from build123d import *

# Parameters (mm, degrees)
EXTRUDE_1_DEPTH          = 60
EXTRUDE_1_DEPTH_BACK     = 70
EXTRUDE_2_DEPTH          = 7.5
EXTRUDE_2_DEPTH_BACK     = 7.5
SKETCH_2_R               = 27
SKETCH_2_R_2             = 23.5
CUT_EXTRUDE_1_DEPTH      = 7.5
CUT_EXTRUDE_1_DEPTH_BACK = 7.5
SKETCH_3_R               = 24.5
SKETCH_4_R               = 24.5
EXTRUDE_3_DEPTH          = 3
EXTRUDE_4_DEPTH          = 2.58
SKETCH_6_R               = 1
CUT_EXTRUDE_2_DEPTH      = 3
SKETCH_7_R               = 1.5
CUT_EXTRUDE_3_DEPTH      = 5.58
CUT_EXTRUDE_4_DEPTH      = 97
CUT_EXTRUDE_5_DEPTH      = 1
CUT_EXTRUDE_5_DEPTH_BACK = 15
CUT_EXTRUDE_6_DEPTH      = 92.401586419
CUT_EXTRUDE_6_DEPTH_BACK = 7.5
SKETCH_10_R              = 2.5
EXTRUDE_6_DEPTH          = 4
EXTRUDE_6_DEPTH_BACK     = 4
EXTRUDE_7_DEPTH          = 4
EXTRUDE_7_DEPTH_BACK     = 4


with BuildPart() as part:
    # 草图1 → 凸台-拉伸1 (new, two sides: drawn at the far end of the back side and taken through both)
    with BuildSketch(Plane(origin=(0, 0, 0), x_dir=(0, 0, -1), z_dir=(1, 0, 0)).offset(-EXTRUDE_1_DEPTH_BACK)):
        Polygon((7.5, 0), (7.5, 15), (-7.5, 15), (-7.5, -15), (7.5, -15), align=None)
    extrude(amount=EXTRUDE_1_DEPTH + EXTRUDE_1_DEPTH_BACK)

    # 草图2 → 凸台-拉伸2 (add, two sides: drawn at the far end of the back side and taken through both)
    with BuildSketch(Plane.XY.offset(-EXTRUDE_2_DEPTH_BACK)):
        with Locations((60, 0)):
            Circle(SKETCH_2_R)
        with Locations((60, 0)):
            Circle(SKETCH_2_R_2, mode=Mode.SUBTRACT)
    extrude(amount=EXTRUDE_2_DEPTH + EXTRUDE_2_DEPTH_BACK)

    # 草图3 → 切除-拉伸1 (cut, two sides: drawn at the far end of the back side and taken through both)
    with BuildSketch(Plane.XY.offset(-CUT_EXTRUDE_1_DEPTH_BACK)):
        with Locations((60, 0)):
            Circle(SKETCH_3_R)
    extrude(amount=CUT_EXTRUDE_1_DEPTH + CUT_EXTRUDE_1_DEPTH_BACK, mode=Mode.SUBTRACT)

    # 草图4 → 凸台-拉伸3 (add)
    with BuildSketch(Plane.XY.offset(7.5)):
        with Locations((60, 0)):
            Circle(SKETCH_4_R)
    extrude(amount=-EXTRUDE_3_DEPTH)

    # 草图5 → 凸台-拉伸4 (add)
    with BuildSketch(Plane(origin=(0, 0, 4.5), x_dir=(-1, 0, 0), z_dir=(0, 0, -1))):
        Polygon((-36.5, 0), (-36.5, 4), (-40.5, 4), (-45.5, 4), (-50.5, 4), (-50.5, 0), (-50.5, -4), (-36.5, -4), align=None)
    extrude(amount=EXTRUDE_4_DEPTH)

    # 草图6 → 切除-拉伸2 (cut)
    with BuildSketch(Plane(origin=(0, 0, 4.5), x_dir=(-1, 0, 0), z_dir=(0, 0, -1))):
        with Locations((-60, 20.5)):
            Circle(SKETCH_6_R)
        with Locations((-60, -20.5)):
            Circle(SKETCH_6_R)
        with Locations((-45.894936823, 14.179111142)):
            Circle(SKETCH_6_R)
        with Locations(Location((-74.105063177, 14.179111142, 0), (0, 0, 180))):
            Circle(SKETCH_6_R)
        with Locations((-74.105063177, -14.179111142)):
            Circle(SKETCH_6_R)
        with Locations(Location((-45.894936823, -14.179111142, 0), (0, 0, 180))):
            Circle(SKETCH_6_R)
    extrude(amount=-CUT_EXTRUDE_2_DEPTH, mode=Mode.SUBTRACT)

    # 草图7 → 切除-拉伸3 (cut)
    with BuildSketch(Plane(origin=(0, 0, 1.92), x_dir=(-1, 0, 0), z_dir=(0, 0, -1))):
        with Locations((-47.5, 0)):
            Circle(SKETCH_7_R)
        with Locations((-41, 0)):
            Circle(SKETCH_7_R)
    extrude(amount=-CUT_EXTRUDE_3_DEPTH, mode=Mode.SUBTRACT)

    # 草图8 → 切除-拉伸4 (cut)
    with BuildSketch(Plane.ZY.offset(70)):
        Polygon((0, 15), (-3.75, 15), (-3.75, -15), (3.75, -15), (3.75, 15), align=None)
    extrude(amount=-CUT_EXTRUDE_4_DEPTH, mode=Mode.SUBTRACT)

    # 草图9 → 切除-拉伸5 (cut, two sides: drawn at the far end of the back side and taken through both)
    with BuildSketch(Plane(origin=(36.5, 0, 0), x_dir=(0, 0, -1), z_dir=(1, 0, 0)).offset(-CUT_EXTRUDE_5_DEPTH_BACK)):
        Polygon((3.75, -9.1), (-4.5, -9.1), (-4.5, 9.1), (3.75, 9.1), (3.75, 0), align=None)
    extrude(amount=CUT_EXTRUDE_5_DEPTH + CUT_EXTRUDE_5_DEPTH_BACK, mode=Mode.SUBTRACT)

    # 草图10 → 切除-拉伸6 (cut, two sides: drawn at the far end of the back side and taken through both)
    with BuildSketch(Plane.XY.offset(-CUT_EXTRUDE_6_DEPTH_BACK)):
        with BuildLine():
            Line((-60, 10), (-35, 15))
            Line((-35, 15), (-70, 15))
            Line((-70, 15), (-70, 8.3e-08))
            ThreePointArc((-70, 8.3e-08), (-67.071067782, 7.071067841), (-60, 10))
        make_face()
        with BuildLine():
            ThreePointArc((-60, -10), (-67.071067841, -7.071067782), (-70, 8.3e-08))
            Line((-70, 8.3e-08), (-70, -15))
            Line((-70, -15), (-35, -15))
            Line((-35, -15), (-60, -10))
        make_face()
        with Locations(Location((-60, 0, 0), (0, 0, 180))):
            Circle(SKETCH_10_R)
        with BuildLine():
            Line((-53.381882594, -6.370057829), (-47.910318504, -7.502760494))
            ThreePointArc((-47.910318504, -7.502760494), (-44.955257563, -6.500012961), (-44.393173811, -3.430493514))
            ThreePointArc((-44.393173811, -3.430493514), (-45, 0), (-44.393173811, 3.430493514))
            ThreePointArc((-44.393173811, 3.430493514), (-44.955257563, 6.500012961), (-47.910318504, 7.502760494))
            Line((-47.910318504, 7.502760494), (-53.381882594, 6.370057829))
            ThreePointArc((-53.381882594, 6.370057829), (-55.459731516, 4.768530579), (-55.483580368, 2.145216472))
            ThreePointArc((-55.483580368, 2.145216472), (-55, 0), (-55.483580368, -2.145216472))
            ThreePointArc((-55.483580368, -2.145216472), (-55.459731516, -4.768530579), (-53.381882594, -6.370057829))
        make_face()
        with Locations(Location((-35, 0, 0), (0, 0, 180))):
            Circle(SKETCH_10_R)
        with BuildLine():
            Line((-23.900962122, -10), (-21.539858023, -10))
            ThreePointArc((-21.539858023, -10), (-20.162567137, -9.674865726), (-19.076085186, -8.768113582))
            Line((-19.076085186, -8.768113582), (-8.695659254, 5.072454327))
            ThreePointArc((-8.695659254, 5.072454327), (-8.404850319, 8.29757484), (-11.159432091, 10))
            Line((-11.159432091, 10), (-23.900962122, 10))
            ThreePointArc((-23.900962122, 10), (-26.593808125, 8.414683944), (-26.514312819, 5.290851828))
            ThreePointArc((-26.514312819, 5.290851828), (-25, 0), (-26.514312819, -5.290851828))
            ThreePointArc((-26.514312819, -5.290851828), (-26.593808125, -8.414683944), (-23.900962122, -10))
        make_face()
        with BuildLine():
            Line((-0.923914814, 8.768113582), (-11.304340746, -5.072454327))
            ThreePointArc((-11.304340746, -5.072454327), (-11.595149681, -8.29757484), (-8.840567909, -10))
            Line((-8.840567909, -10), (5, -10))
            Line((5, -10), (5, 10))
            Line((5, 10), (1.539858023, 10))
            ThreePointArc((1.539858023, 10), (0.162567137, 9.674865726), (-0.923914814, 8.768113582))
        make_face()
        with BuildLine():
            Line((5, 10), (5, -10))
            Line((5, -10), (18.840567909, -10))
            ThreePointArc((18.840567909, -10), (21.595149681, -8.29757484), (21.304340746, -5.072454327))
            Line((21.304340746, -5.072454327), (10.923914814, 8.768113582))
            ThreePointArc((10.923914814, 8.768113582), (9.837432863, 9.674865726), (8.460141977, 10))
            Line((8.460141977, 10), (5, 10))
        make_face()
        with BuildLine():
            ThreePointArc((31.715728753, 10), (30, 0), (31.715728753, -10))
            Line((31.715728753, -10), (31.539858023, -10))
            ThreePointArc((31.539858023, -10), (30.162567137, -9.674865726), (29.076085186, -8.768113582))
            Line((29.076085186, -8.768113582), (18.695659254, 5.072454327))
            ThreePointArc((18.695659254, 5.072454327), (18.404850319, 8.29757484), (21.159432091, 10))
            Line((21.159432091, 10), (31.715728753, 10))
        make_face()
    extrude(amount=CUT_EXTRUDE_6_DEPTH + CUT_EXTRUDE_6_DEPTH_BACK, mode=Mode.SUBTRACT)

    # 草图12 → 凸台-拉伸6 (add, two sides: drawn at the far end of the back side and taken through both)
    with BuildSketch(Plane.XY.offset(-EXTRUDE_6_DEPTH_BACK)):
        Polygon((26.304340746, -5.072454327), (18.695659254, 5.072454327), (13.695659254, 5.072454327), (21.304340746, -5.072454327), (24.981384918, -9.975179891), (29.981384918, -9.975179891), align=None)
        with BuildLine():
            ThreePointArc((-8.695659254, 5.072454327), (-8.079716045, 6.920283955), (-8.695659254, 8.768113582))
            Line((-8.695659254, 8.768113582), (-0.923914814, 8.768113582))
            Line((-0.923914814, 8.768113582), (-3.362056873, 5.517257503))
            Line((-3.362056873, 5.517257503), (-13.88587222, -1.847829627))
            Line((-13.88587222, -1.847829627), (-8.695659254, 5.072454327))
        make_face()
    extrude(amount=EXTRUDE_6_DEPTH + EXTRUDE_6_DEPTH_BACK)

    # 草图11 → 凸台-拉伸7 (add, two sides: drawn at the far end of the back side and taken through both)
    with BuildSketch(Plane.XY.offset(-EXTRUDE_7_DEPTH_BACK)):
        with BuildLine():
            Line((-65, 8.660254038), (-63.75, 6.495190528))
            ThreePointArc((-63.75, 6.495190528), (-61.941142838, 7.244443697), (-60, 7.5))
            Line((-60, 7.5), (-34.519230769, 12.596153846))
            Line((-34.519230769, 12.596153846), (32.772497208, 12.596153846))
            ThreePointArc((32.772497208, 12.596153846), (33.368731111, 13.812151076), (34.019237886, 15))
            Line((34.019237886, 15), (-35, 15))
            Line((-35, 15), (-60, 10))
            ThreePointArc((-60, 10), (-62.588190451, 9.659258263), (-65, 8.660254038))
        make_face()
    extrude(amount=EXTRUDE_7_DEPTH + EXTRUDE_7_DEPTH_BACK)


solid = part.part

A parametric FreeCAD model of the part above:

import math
import FreeCAD as App
import Part
import Sketcher
Q = App.Units.Quantity

doc = App.newDocument("Part")
body = doc.addObject("PartDesign::Body", "Body")

# Sketch on YZ plane
sketch1 = doc.addObject("Sketcher::SketchObject", "Sketch")
body.addObject(sketch1)
sketch1.AttachmentSupport = (doc.YZ_Plane, [""])
sketch1.MapMode = "FlatFace"
sketch1.addGeometry([
    Part.LineSegment(App.Vector(15, -8, 0), App.Vector(15, 8, 0)),
    Part.LineSegment(App.Vector(15, 8, 0), App.Vector(-15, 8, 0)),
    Part.LineSegment(App.Vector(-15, 8, 0), App.Vector(-15, -8, 0)),
    Part.LineSegment(App.Vector(-15, -8, 0), App.Vector(15, -8, 0)),
], False)
sketch1.addConstraint([
    Sketcher.Constraint("Coincident", 0, 2, 1, 1),
    Sketcher.Constraint("Coincident", 1, 2, 2, 1),
    Sketcher.Constraint("Coincident", 2, 2, 3, 1),
    Sketcher.Constraint("Coincident", 3, 2, 0, 1),
    Sketcher.Constraint("Vertical", 0),
    Sketcher.Constraint("Horizontal", 1),
    Sketcher.Constraint("Vertical", 2),
    Sketcher.Constraint("Horizontal", 3),
    Sketcher.Constraint("Symmetric", 0, 2, 2, 2, -1, 1),
    Sketcher.Constraint("DistanceX", 1, 2, 1, 1, Q("30 mm")),
    Sketcher.Constraint("DistanceY", 0, 1, 0, 2, Q("15 mm")),
])
pad1 = doc.addObject("PartDesign::Pad", "Pad")
body.addObject(pad1)
pad1.Profile = sketch1
pad1.Type = "TwoLengths"
pad1.Length = 60
pad1.Length2 = 70

# Sketch on XY plane
sketch2 = doc.addObject("Sketcher::SketchObject", "Sketch001")
body.addObject(sketch2)
sketch2.AttachmentSupport = (doc.XY_Plane, [""])
sketch2.MapMode = "FlatFace"
sketch2.addGeometry([
    Part.Circle(App.Vector(60, 0, 0), App.Vector(0, 0, 1), 27),
    Part.Circle(App.Vector(60, 0, 0), App.Vector(0, 0, 1), 24),
], False)
sketch2.addConstraint([
    Sketcher.Constraint("Coincident", 1, 3, 0, 3),
    Sketcher.Constraint("PointOnObject", 0, 3, -1),
    Sketcher.Constraint("Diameter", 0, Q("54 mm")),
    Sketcher.Constraint("Diameter", 1, Q("47 mm")),
    Sketcher.Constraint("DistanceX", -1, 1, 0, 3, Q("60 mm")),
])
pad2 = doc.addObject("PartDesign::Pad", "Pad001")
body.addObject(pad2)
pad2.Profile = sketch2
pad2.Type = "TwoLengths"
pad2.Length = 7.5
pad2.Length2 = 7.5

# Sketch on XY plane
sketch3 = doc.addObject("Sketcher::SketchObject", "Sketch002")
body.addObject(sketch3)
sketch3.AttachmentSupport = (doc.XY_Plane, [""])
sketch3.MapMode = "FlatFace"
sketch3.addGeometry(Part.Circle(App.Vector(60, 0, 0), App.Vector(0, 0, 1), 24), False)
sketch3.addConstraint([
    Sketcher.Constraint("PointOnObject", 0, 3, -1),
    Sketcher.Constraint("Diameter", 0, Q("49 mm")),
    Sketcher.Constraint("DistanceX", -1, 1, 0, 3, Q("60 mm")),
])
pocket1 = doc.addObject("PartDesign::Pocket", "Pocket")
body.addObject(pocket1)
pocket1.Profile = sketch3
pocket1.Type = "ThroughAll"
pocket1.Midplane = True

# Sketch on XY plane
sketch4 = doc.addObject("Sketcher::SketchObject", "Sketch003")
body.addObject(sketch4)
sketch4.AttachmentSupport = (doc.XY_Plane, [""])
sketch4.MapMode = "FlatFace"
sketch4.AttachmentOffset = App.Placement(App.Vector(0, 0, 7.5), App.Rotation())
sketch4.addGeometry(Part.Circle(App.Vector(60, 0, 0), App.Vector(0, 0, 1), 24), False)
sketch4.addConstraint([
    Sketcher.Constraint("PointOnObject", 0, 3, -1),
    Sketcher.Constraint("Diameter", 0, Q("49 mm")),
    Sketcher.Constraint("DistanceX", -1, 1, 0, 3, Q("60 mm")),
])
pad3 = doc.addObject("PartDesign::Pad", "Pad002")
body.addObject(pad3)
pad3.Profile = sketch4
pad3.Length = 3
pad3.Reversed = True

# Sketch on XY plane
sketch5 = doc.addObject("Sketcher::SketchObject", "Sketch004")
body.addObject(sketch5)
sketch5.AttachmentSupport = (doc.XY_Plane, [""])
sketch5.MapMode = "FlatFace"
sketch5.AttachmentOffset = App.Placement(App.Vector(0, 0, 4.5), App.Rotation())
sketch5.addGeometry([
    Part.LineSegment(App.Vector(36, 4, 0), App.Vector(50, 4, 0)),
    Part.LineSegment(App.Vector(50, 4, 0), App.Vector(50, -4, 0)),
    Part.LineSegment(App.Vector(50, -4, 0), App.Vector(36, -4, 0)),
    Part.LineSegment(App.Vector(36, -4, 0), App.Vector(36, 4, 0)),
], False)
sketch5.addConstraint([
    Sketcher.Constraint("Coincident", 0, 2, 1, 1),
    Sketcher.Constraint("Coincident", 1, 2, 2, 1),
    Sketcher.Constraint("Coincident", 2, 2, 3, 1),
    Sketcher.Constraint("Coincident", 3, 2, 0, 1),
    Sketcher.Constraint("Horizontal", 0),
    Sketcher.Constraint("Vertical", 1),
    Sketcher.Constraint("Horizontal", 2),
    Sketcher.Constraint("Vertical", 3),
    Sketcher.Constraint("DistanceX", 0, 1, 0, 2, Q("14 mm")),
    Sketcher.Constraint("DistanceY", 1, 2, 1, 1, Q("8 mm")),
    Sketcher.Constraint("DistanceY", -1, 1, 0, 2, Q("4 mm")),
    Sketcher.Constraint("DistanceX", -1, 1, 0, 2, Q("50.5 mm")),
])
pad4 = doc.addObject("PartDesign::Pad", "Pad003")
body.addObject(pad4)
pad4.Profile = sketch5
pad4.Length = 2.58
pad4.Reversed = True

# Sketch on XY plane
sketch6 = doc.addObject("Sketcher::SketchObject", "Sketch005")
body.addObject(sketch6)
sketch6.AttachmentSupport = (doc.XY_Plane, [""])
sketch6.MapMode = "FlatFace"
sketch6.AttachmentOffset = App.Placement(App.Vector(0, 0, 4.5), App.Rotation())
sketch6.addGeometry([
    Part.Circle(App.Vector(60, 20.5, 0), App.Vector(0, 0, 1), 1),  # 0
    Part.Circle(App.Vector(60, -20.5, 0), App.Vector(0, 0, 1), 1),  # 1
    Part.Circle(App.Vector(45.9, 14.2, 0), App.Vector(0, 0, 1), 1),  # 2
    Part.Circle(App.Vector(74.1, 14.2, 0), App.Vector(0, 0, 1), 1),  # 3
    Part.Circle(App.Vector(74.1, -14.2, 0), App.Vector(0, 0, 1), 1),  # 4
    Part.Circle(App.Vector(45.9, -14.2, 0), App.Vector(0, 0, 1), 1),  # 5
], False)
sketch6.addConstraint([
    Sketcher.Constraint("Equal", 0, 1),
    Sketcher.Constraint("Equal", 1, 2),
    Sketcher.Constraint("Equal", 2, 3),
    Sketcher.Constraint("Equal", 3, 4),
    Sketcher.Constraint("Equal", 4, 5),
    Sketcher.Constraint("Symmetric", 0, 3, 1, 3, -1),
    Sketcher.Constraint("Symmetric", 3, 3, 4, 3, -1),
    Sketcher.Constraint("Symmetric", 2, 3, 5, 3, -1),
    Sketcher.Constraint("Horizontal", 2, 3, 3, 3),
    Sketcher.Constraint("Diameter", 0, Q("2 mm")),
    Sketcher.Constraint("DistanceX", -1, 1, 0, 3, Q("60 mm")),
    Sketcher.Constraint("DistanceY", 1, 3, 0, 3, Q("41 mm")),
    Sketcher.Constraint("DistanceY", -1, 1, 2, 3, Q("14.179111 mm")),
    Sketcher.Constraint("DistanceX", -1, 1, 2, 3, Q("45.894937 mm")),
    Sketcher.Constraint("DistanceX", -1, 1, 3, 3, Q("74.105063 mm")),
])
pocket2 = doc.addObject("PartDesign::Pocket", "Pocket001")
body.addObject(pocket2)
pocket2.Profile = sketch6
pocket2.Length = 3
pocket2.Reversed = True

# Sketch on XY plane
sketch7 = doc.addObject("Sketcher::SketchObject", "Sketch006")
body.addObject(sketch7)
sketch7.AttachmentSupport = (doc.XY_Plane, [""])
sketch7.MapMode = "FlatFace"
sketch7.AttachmentOffset = App.Placement(App.Vector(0, 0, 1.92), App.Rotation())
sketch7.addGeometry([
    Part.Circle(App.Vector(47.5, 0, 0), App.Vector(0, 0, 1), 1.5),
    Part.Circle(App.Vector(41, 0, 0), App.Vector(0, 0, 1), 1.5),
], False)
sketch7.addConstraint([
    Sketcher.Constraint("Equal", 0, 1),
    Sketcher.Constraint("PointOnObject", 0, 3, -1),
    Sketcher.Constraint("PointOnObject", 1, 3, -1),
    Sketcher.Constraint("Diameter", 0, Q("3 mm")),
    Sketcher.Constraint("DistanceX", -1, 1, 1, 3, Q("41 mm")),
    Sketcher.Constraint("DistanceX", -1, 1, 0, 3, Q("47.5 mm")),
])
pocket3 = doc.addObject("PartDesign::Pocket", "Pocket002")
body.addObject(pocket3)
pocket3.Profile = sketch7
pocket3.Length = 5.58
pocket3.Reversed = True

# Sketch on YZ plane
sketch8 = doc.addObject("Sketcher::SketchObject", "Sketch007")
body.addObject(sketch8)
sketch8.AttachmentSupport = (doc.YZ_Plane, [""])
sketch8.MapMode = "FlatFace"
sketch8.AttachmentOffset = App.Placement(App.Vector(0, 0, -70), App.Rotation())
sketch8.addGeometry([
    Part.LineSegment(App.Vector(15, -4, 0), App.Vector(-15, -4, 0)),
    Part.LineSegment(App.Vector(-15, -4, 0), App.Vector(-15, 4, 0)),
    Part.LineSegment(App.Vector(-15, 4, 0), App.Vector(15, 4, 0)),
    Part.LineSegment(App.Vector(15, 4, 0), App.Vector(15, -4, 0)),
], False)
sketch8.addConstraint([
    Sketcher.Constraint("Coincident", 0, 2, 1, 1),
    Sketcher.Constraint("Coincident", 1, 2, 2, 1),
    Sketcher.Constraint("Coincident", 2, 2, 3, 1),
    Sketcher.Constraint("Coincident", 3, 2, 0, 1),
    Sketcher.Constraint("Horizontal", 0),
    Sketcher.Constraint("Vertical", 1),
    Sketcher.Constraint("Horizontal", 2),
    Sketcher.Constraint("Vertical", 3),
    Sketcher.Constraint("Symmetric", 0, 2, 2, 2, -1, 1),
    Sketcher.Constraint("DistanceX", 0, 2, 0, 1, Q("30 mm")),
    Sketcher.Constraint("DistanceY", 1, 1, 1, 2, Q("7.5 mm")),
])
pocket4 = doc.addObject("PartDesign::Pocket", "Pocket003")
body.addObject(pocket4)
pocket4.Profile = sketch8
pocket4.Length = 97
pocket4.Reversed = True

# Sketch on YZ plane
sketch9 = doc.addObject("Sketcher::SketchObject", "Sketch008")
body.addObject(sketch9)
sketch9.AttachmentSupport = (doc.YZ_Plane, [""])
sketch9.MapMode = "FlatFace"
sketch9.AttachmentOffset = App.Placement(App.Vector(0, 0, 36.5), App.Rotation())
sketch9.addGeometry([
    Part.LineSegment(App.Vector(-9, 4, 0), App.Vector(-9, -4, 0)),
    Part.LineSegment(App.Vector(-9, -4, 0), App.Vector(9, -4, 0)),
    Part.LineSegment(App.Vector(9, -4, 0), App.Vector(9, 4, 0)),
    Part.LineSegment(App.Vector(9, 4, 0), App.Vector(-9, 4, 0)),
], False)
sketch9.addConstraint([
    Sketcher.Constraint("Coincident", 0, 2, 1, 1),
    Sketcher.Constraint("Coincident", 1, 2, 2, 1),
    Sketcher.Constraint("Coincident", 2, 2, 3, 1),
    Sketcher.Constraint("Coincident", 3, 2, 0, 1),
    Sketcher.Constraint("Vertical", 0),
    Sketcher.Constraint("Horizontal", 1),
    Sketcher.Constraint("Vertical", 2),
    Sketcher.Constraint("Horizontal", 3),
    Sketcher.Constraint("DistanceX", 1, 1, 1, 2, Q("18.2 mm")),
    Sketcher.Constraint("DistanceY", 0, 2, 0, 1, Q("8.25 mm")),
    Sketcher.Constraint("DistanceX", 0, 2, -1, 1, Q("9.1 mm")),
    Sketcher.Constraint("DistanceY", -1, 1, 2, 2, Q("4.5 mm")),
])
pocket5 = doc.addObject("PartDesign::Pocket", "Pocket004")
body.addObject(pocket5)
pocket5.Profile = sketch9
pocket5.Type = "TwoLengths"
pocket5.Length = 1
pocket5.Length2 = 15
pocket5.Reversed = True

# Sketch on XY plane
sketch10 = doc.addObject("Sketcher::SketchObject", "Sketch009")
body.addObject(sketch10)
sketch10.AttachmentSupport = (doc.XY_Plane, [""])
sketch10.MapMode = "FlatFace"
sketch10.addGeometry([
    Part.LineSegment(App.Vector(-60, 10, 0), App.Vector(-35, 15, 0)),  # 0
    Part.LineSegment(App.Vector(-35, 15, 0), App.Vector(-70, 15, 0)),  # 1
    Part.LineSegment(App.Vector(-70, 15, 0), App.Vector(-70, 0, 0)),  # 2
    Part.ArcOfCircle(Part.Circle(App.Vector(-60, 0, 0), App.Vector(0, 0, 1), 10), math.radians(90), math.radians(180)),  # 3
    Part.ArcOfCircle(Part.Circle(App.Vector(-60, 0, 0), App.Vector(0, 0, 1), 10), math.radians(180), math.radians(270)),  # 4
    Part.LineSegment(App.Vector(-70, 0, 0), App.Vector(-70, -15, 0)),  # 5
    Part.LineSegment(App.Vector(-70, -15, 0), App.Vector(-35, -15, 0)),  # 6
    Part.LineSegment(App.Vector(-35, -15, 0), App.Vector(-60, -10, 0)),  # 7
    Part.Circle(App.Vector(-60, 0, 0), App.Vector(0, 0, 1), 2.5),  # 8
    Part.LineSegment(App.Vector(-53.38, -6.37, 0), App.Vector(-47.91, -7.5, 0)),  # 9
    Part.ArcOfCircle(Part.Circle(App.Vector(-47.29, -4.49, 0), App.Vector(0, 0, 1), 3.08), math.radians(-102), math.radians(20)),  # 10
    Part.ArcOfCircle(Part.Circle(App.Vector(-35, 0, 0), App.Vector(0, 0, 1), 10), math.radians(160), math.radians(200)),  # 11
    Part.ArcOfCircle(Part.Circle(App.Vector(-47.29, 4.49, 0), App.Vector(0, 0, 1), 3.08), math.radians(-20), math.radians(102)),  # 12
    Part.LineSegment(App.Vector(-47.91, 7.5, 0), App.Vector(-53.38, 6.37, 0)),  # 13
    Part.ArcOfCircle(Part.Circle(App.Vector(-52.77, 3.43, 0), App.Vector(0, 0, 1), 3), math.radians(102), math.radians(205)),  # 14
    Part.ArcOfCircle(Part.Circle(App.Vector(-60, 0, 0), App.Vector(0, 0, 1), 5), math.radians(-25), math.radians(25)),  # 15
    Part.ArcOfCircle(Part.Circle(App.Vector(-52.77, -3.43, 0), App.Vector(0, 0, 1), 3), math.radians(155), math.radians(258)),  # 16
    Part.Circle(App.Vector(-35, 0, 0), App.Vector(0, 0, 1), 2.5),  # 17
    Part.LineSegment(App.Vector(-23.9, -10, 0), App.Vector(-21.54, -10, 0)),  # 18
    Part.ArcOfCircle(Part.Circle(App.Vector(-21.54, -6.92, 0), App.Vector(0, 0, 1), 3.08), math.radians(-90), math.radians(-37)),  # 19
    Part.LineSegment(App.Vector(-19.08, -8.77, 0), App.Vector(-8.7, 5.07, 0)),  # 20
    Part.ArcOfCircle(Part.Circle(App.Vector(-11.16, 6.92, 0), App.Vector(0, 0, 1), 3.08), math.radians(-37), math.radians(90)),  # 21
    Part.LineSegment(App.Vector(-11.16, 10, 0), App.Vector(-23.9, 10, 0)),  # 22
    Part.ArcOfCircle(Part.Circle(App.Vector(-23.9, 6.92, 0), App.Vector(0, 0, 1), 3.08), math.radians(90), math.radians(212)),  # 23
    Part.ArcOfCircle(Part.Circle(App.Vector(-35, 0, 0), App.Vector(0, 0, 1), 10), math.radians(-32), math.radians(32)),  # 24
    Part.ArcOfCircle(Part.Circle(App.Vector(-23.9, -6.92, 0), App.Vector(0, 0, 1), 3.08), math.radians(148), math.radians(270)),  # 25
    Part.LineSegment(App.Vector(-0.92, 8.77, 0), App.Vector(-11.3, -5.07, 0)),  # 26
    Part.ArcOfCircle(Part.Circle(App.Vector(-8.84, -6.92, 0), App.Vector(0, 0, 1), 3.08), math.radians(143), math.radians(270)),  # 27
    Part.LineSegment(App.Vector(-8.84, -10, 0), App.Vector(18.84, -10, 0)),  # 28
    Part.ArcOfCircle(Part.Circle(App.Vector(18.84, -6.92, 0), App.Vector(0, 0, 1), 3.08), math.radians(-90), math.radians(37)),  # 29
    Part.LineSegment(App.Vector(21.3, -5.07, 0), App.Vector(10.92, 8.77, 0)),  # 30
    Part.ArcOfCircle(Part.Circle(App.Vector(8.46, 6.92, 0), App.Vector(0, 0, 1), 3.08), math.radians(37), math.radians(90)),  # 31
    Part.LineSegment(App.Vector(8.46, 10, 0), App.Vector(1.54, 10, 0)),  # 32
    Part.ArcOfCircle(Part.Circle(App.Vector(1.54, 6.92, 0), App.Vector(0, 0, 1), 3.08), math.radians(90), math.radians(143)),  # 33
    Part.ArcOfCircle(Part.Circle(App.Vector(60, 0, 0), App.Vector(0, 0, 1), 30), math.radians(161), math.radians(199)),  # 34
    Part.LineSegment(App.Vector(31.72, 10, 0), App.Vector(21.16, 10, 0)),  # 35
    Part.ArcOfCircle(Part.Circle(App.Vector(21.16, 6.92, 0), App.Vector(0, 0, 1), 3.08), math.radians(90), math.radians(217)),  # 36
    Part.LineSegment(App.Vector(18.7, 5.07, 0), App.Vector(29.08, -8.77, 0)),  # 37
    Part.ArcOfCircle(Part.Circle(App.Vector(31.54, -6.92, 0), App.Vector(0, 0, 1), 3.08), math.radians(-143), math.radians(-90)),  # 38
    Part.LineSegment(App.Vector(31.54, -10, 0), App.Vector(31.72, -10, 0)),  # 39
], False)
sketch10.addConstraint([
    Sketcher.Constraint("Coincident", 0, 2, 1, 1),
    Sketcher.Constraint("Coincident", 1, 2, 2, 1),
    Sketcher.Constraint("Tangent", 2, 2, 3, 2),
    Sketcher.Constraint("Coincident", 3, 1, 0, 1),
    Sketcher.Constraint("Tangent", 4, 1, 5, 1),
    Sketcher.Constraint("Coincident", 5, 2, 6, 1),
    Sketcher.Constraint("Coincident", 6, 2, 7, 1),
    Sketcher.Constraint("Coincident", 7, 2, 4, 2),
    Sketcher.Constraint("Tangent", 9, 2, 10, 1),
    Sketcher.Constraint("Tangent", 10, 2, 11, 2),
    Sketcher.Constraint("Tangent", 11, 1, 12, 1),
    Sketcher.Constraint("Tangent", 12, 2, 13, 1),
    Sketcher.Constraint("Tangent", 13, 2, 14, 1),
    Sketcher.Constraint("Tangent", 14, 2, 15, 2),
    Sketcher.Constraint("Tangent", 15, 1, 16, 1),
    Sketcher.Constraint("Tangent", 16, 2, 9, 1),
    Sketcher.Constraint("Tangent", 18, 2, 19, 1),
    Sketcher.Constraint("Tangent", 19, 2, 20, 1),
    Sketcher.Constraint("Tangent", 20, 2, 21, 1),
    Sketcher.Constraint("Tangent", 21, 2, 22, 1),
    Sketcher.Constraint("Tangent", 22, 2, 23, 1),
    Sketcher.Constraint("Tangent", 23, 2, 24, 2),
    Sketcher.Constraint("Tangent", 24, 1, 25, 1),
    Sketcher.Constraint("Tangent", 25, 2, 18, 1),
    Sketcher.Constraint("Tangent", 26, 2, 27, 1),
    Sketcher.Constraint("Tangent", 27, 2, 28, 1),
    Sketcher.Constraint("Tangent", 28, 2, 29, 1),
    Sketcher.Constraint("Tangent", 29, 2, 30, 1),
    Sketcher.Constraint("Tangent", 30, 2, 31, 1),
    Sketcher.Constraint("Tangent", 31, 2, 32, 1),
    Sketcher.Constraint("Tangent", 32, 2, 33, 1),
    Sketcher.Constraint("Tangent", 33, 2, 26, 1),
    Sketcher.Constraint("Coincident", 34, 1, 35, 1),
    Sketcher.Constraint("Tangent", 35, 2, 36, 1),
    Sketcher.Constraint("Tangent", 36, 2, 37, 1),
    Sketcher.Constraint("Tangent", 37, 2, 38, 1),
    Sketcher.Constraint("Tangent", 38, 2, 39, 1),
    Sketcher.Constraint("Coincident", 39, 2, 34, 2),
    Sketcher.Constraint("Horizontal", 1),
    Sketcher.Constraint("Vertical", 2),
    Sketcher.Constraint("Vertical", 5),
    Sketcher.Constraint("Horizontal", 6),
    Sketcher.Constraint("Horizontal", 18),
    Sketcher.Constraint("Horizontal", 22),
    Sketcher.Constraint("Horizontal", 28),
    Sketcher.Constraint("Horizontal", 32),
    Sketcher.Constraint("Horizontal", 35),
    Sketcher.Constraint("Horizontal", 39),
    Sketcher.Constraint("Coincident", 4, 3, 3, 3),
    Sketcher.Constraint("Coincident", 8, 3, 3, 3),
    Sketcher.Constraint("Coincident", 15, 3, 3, 3),
    Sketcher.Constraint("Coincident", 17, 3, 11, 3),
    Sketcher.Constraint("Coincident", 24, 3, 11, 3),
    Sketcher.Constraint("Equal", 3, 4),
    Sketcher.Constraint("Equal", 4, 11),
    Sketcher.Constraint("Equal", 10, 12),
    Sketcher.Constraint("Equal", 14, 16),
    Sketcher.Constraint("Equal", 8, 17),
    Sketcher.Constraint("Equal", 12, 19),
    Sketcher.Constraint("Equal", 19, 21),
    Sketcher.Constraint("Equal", 21, 23),
    Sketcher.Constraint("Equal", 11, 24),
    Sketcher.Constraint("Equal", 23, 25),
    Sketcher.Constraint("Equal", 25, 27),
    Sketcher.Constraint("Equal", 27, 29),
    Sketcher.Constraint("Equal", 29, 31),
    Sketcher.Constraint("Equal", 31, 33),
    Sketcher.Constraint("Equal", 33, 36),
    Sketcher.Constraint("Equal", 36, 38),
    Sketcher.Constraint("Symmetric", 3, 3, 34, 3, -1, 1),
    Sketcher.Constraint("Symmetric", 10, 3, 12, 3, -1),
    Sketcher.Constraint("Symmetric", 14, 3, 16, 3, -1),
    Sketcher.Constraint("Symmetric", 0, 2, 6, 2, -1),
    Sketcher.Constraint("Parallel", 20, 26),
    Sketcher.Constraint("Parallel", 30, 37),
    Sketcher.Constraint("Horizontal", 25, 3, 27, 3),
    Sketcher.Constraint("Horizontal", 23, 3, 31, 3),
    Sketcher.Constraint("Horizontal", 33, 3, 36, 3),
    Sketcher.Constraint("Horizontal", 29, 3, 38, 3),
    Sketcher.Constraint("Horizontal", 7, 2, 18, 2),
    Sketcher.Constraint("Horizontal", 3, 1, 21, 2),
    Sketcher.Constraint("Horizontal", 26, 2, 29, 2),
    Sketcher.Constraint("Vertical", 24, 3, 0, 2),
    Sketcher.Constraint("Vertical", 15, 3, 3, 1),
    Sketcher.Constraint("Vertical", 3, 1, 7, 2),
    Sketcher.Constraint("Diameter", 8, Q("5 mm")),
    Sketcher.Constraint("Radius", 3, Q("10 mm")),
    Sketcher.Constraint("Radius", 14, Q("3 mm")),
    Sketcher.Constraint("Radius", 15, Q("5 mm")),
    Sketcher.Constraint("Radius", 34, Q("30 mm")),
    Sketcher.Constraint("DistanceX", 1, 2, 1, 1, Q("35 mm")),
    Sketcher.Constraint("DistanceY", 2, 2, 2, 1, Q("15 mm")),
    Sketcher.Constraint("DistanceX", 3, 3, -1, 1, Q("60 mm")),
    Sketcher.Constraint("DistanceX", 21, 3, 29, 3, Q("30 mm")),
    Sketcher.Constraint("DistanceX", 27, 3, 36, 3, Q("30 mm")),
    Sketcher.Constraint("Radius", 10, Q("3.079716 mm")),
    Sketcher.Constraint("DistanceX", 22, 2, 22, 1, Q("12.74153 mm")),
    Sketcher.Constraint("DistanceX", 39, 1, 39, 2, Q("0.175871 mm")),
    Sketcher.Constraint("DistanceX", 20, 2, 31, 3, Q("17.155801 mm")),
    Sketcher.Constraint("Distance", 9, Q("5.587578 mm")),
    Sketcher.Constraint("DistanceY", 10, 3, -1, 1, Q("4.486988 mm")),
])
pocket6 = doc.addObject("PartDesign::Pocket", "Pocket005")
body.addObject(pocket6)
pocket6.Profile = sketch10
pocket6.Type = "ThroughAll"
pocket6.Midplane = True

# Sketch on XY plane
sketch11 = doc.addObject("Sketcher::SketchObject", "Sketch010")
body.addObject(sketch11)
sketch11.AttachmentSupport = (doc.XY_Plane, [""])
sketch11.MapMode = "FlatFace"
sketch11.addGeometry([
    Part.LineSegment(App.Vector(26.3, -5.1, 0), App.Vector(18.7, 5.1, 0)),  # 0
    Part.LineSegment(App.Vector(18.7, 5.1, 0), App.Vector(13.7, 5.1, 0)),  # 1
    Part.LineSegment(App.Vector(13.7, 5.1, 0), App.Vector(21.3, -5.1, 0)),  # 2
    Part.LineSegment(App.Vector(21.3, -5.1, 0), App.Vector(25, -10, 0)),  # 3
    Part.LineSegment(App.Vector(25, -10, 0), App.Vector(30, -10, 0)),  # 4
    Part.LineSegment(App.Vector(30, -10, 0), App.Vector(26.3, -5.1, 0)),  # 5
    Part.ArcOfCircle(Part.Circle(App.Vector(-11.2, 6.9, 0), App.Vector(0, 0, 1), 3.1), math.radians(-37), math.radians(37)),  # 6
    Part.LineSegment(App.Vector(-8.7, 5.1, 0), App.Vector(-13.9, -1.8, 0)),  # 7
    Part.LineSegment(App.Vector(-13.9, -1.8, 0), App.Vector(-3.4, 5.5, 0)),  # 8
    Part.LineSegment(App.Vector(-3.4, 5.5, 0), App.Vector(-0.9, 8.8, 0)),  # 9
    Part.LineSegment(App.Vector(-0.9, 8.8, 0), App.Vector(-8.7, 8.8, 0)),  # 10
], False)
sketch11.addConstraint([
    Sketcher.Constraint("Coincident", 0, 2, 1, 1),
    Sketcher.Constraint("Coincident", 1, 2, 2, 1),
    Sketcher.Constraint("Coincident", 2, 2, 3, 1),
    Sketcher.Constraint("Coincident", 3, 2, 4, 1),
    Sketcher.Constraint("Coincident", 4, 2, 5, 1),
    Sketcher.Constraint("Coincident", 5, 2, 0, 1),
    Sketcher.Constraint("Tangent", 6, 1, 7, 1),
    Sketcher.Constraint("Coincident", 7, 2, 8, 1),
    Sketcher.Constraint("Coincident", 8, 2, 9, 1),
    Sketcher.Constraint("Coincident", 9, 2, 10, 1),
    Sketcher.Constraint("Coincident", 10, 2, 6, 2),
    Sketcher.Constraint("Horizontal", 1),
    Sketcher.Constraint("Horizontal", 4),
    Sketcher.Constraint("Horizontal", 10),
    Sketcher.Constraint("Parallel", 0, 2),
    Sketcher.Constraint("Parallel", 2, 3),
    Sketcher.Constraint("Parallel", 3, 5),
    Sketcher.Constraint("Parallel", 7, 9),
    Sketcher.Constraint("Horizontal", 2, 2, 5, 2),
    Sketcher.Constraint("Horizontal", 1, 2, 6, 1),
    Sketcher.Constraint("Vertical", 6, 1, 10, 2),
    Sketcher.Constraint("DistanceX", 1, 2, 1, 1, Q("5 mm")),
    Sketcher.Constraint("DistanceX", 6, 1, 2, 2, Q("30 mm")),
    Sketcher.Constraint("Radius", 6, Q("3.079716 mm")),
    Sketcher.Constraint("Distance", 9, Q("4.06357 mm")),
    Sketcher.Constraint("DistanceX", 10, 2, 10, 1, Q("7.771744 mm")),
    Sketcher.Constraint("DistanceX", -1, 1, 0, 2, Q("18.695659 mm")),
    Sketcher.Constraint("DistanceX", -1, 1, 2, 2, Q("21.304341 mm")),
    Sketcher.Constraint("DistanceY", 3, 2, -1, 1, Q("9.97518 mm")),
    Sketcher.Constraint("DistanceY", 7, 2, -1, 1, Q("1.84783 mm")),
    Sketcher.Constraint("DistanceX", 6, 3, 0, 2, Q("29.855091 mm")),
    Sketcher.Constraint("DistanceY", 2, 2, 0, 2, Q("10.144909 mm")),
    Sketcher.Constraint("DistanceX", 7, 2, 6, 3, Q("2.72644 mm")),
])
pad5 = doc.addObject("PartDesign::Pad", "Pad004")
body.addObject(pad5)
pad5.Profile = sketch11
pad5.Type = "TwoLengths"
pad5.Length = 4
pad5.Length2 = 4

# Sketch on XY plane
sketch12 = doc.addObject("Sketcher::SketchObject", "Sketch011")
body.addObject(sketch12)
sketch12.AttachmentSupport = (doc.XY_Plane, [""])
sketch12.MapMode = "FlatFace"
sketch12.addGeometry([
    Part.LineSegment(App.Vector(-65, 8.7, 0), App.Vector(-63.8, 6.5, 0)),  # 0
    Part.ArcOfCircle(Part.Circle(App.Vector(-60, 0, 0), App.Vector(0, 0, 1), 7.5), math.radians(90), math.radians(120)),  # 1
    Part.LineSegment(App.Vector(-60, 7.5, 0), App.Vector(-34.5, 12.6, 0)),  # 2
    Part.LineSegment(App.Vector(-34.5, 12.6, 0), App.Vector(32.8, 12.6, 0)),  # 3
    Part.ArcOfCircle(Part.Circle(App.Vector(60, 0, 0), App.Vector(0, 0, 1), 30), math.radians(150), math.radians(155.17)),  # 4
    Part.LineSegment(App.Vector(34, 15, 0), App.Vector(-35, 15, 0)),  # 5
    Part.LineSegment(App.Vector(-35, 15, 0), App.Vector(-60, 10, 0)),  # 6
    Part.ArcOfCircle(Part.Circle(App.Vector(-60, 0, 0), App.Vector(0, 0, 1), 10), math.radians(90), math.radians(120)),  # 7
], False)
sketch12.addConstraint([
    Sketcher.Constraint("Coincident", 0, 2, 1, 2),
    Sketcher.Constraint("Coincident", 1, 1, 2, 1),
    Sketcher.Constraint("Coincident", 2, 2, 3, 1),
    Sketcher.Constraint("Coincident", 3, 2, 4, 2),
    Sketcher.Constraint("Coincident", 4, 1, 5, 1),
    Sketcher.Constraint("Coincident", 5, 2, 6, 1),
    Sketcher.Constraint("Coincident", 6, 2, 7, 1),
    Sketcher.Constraint("Coincident", 7, 2, 0, 1),
    Sketcher.Constraint("Horizontal", 3),
    Sketcher.Constraint("Horizontal", 5),
    Sketcher.Constraint("Coincident", 7, 3, 1, 3),
    Sketcher.Constraint("Symmetric", 1, 3, 4, 3, -1, 1),
    Sketcher.Constraint("PointOnObject", 1, 3, -1),
    Sketcher.Constraint("Parallel", 2, 6),
    Sketcher.Constraint("Vertical", 7, 3, 1, 1),
    Sketcher.Constraint("Vertical", 1, 1, 6, 2),
    Sketcher.Constraint("Radius", 4, Q("30 mm")),
    Sketcher.Constraint("Radius", 7, Q("10 mm")),
    Sketcher.Constraint("Radius", 1, Q("7.5 mm")),
    Sketcher.Constraint("Angle", 0, Q("-60 deg")),
    Sketcher.Constraint("DistanceX", 1, 3, -1, 1, Q("60 mm")),
    Sketcher.Constraint("DistanceY", -1, 1, 4, 1, Q("15 mm")),
    Sketcher.Constraint("DistanceX", 5, 2, -1, 1, Q("35 mm")),
    Sketcher.Constraint("DistanceX", 7, 2, -1, 1, Q("65 mm")),
    Sketcher.Constraint("DistanceX", 3, 1, 3, 2, Q("67.291728 mm")),
])
pad6 = doc.addObject("PartDesign::Pad", "Pad005")
body.addObject(pad6)
pad6.Profile = sketch12
pad6.Type = "TwoLengths"
pad6.Length = 4
pad6.Length2 = 4

doc.recompute()
